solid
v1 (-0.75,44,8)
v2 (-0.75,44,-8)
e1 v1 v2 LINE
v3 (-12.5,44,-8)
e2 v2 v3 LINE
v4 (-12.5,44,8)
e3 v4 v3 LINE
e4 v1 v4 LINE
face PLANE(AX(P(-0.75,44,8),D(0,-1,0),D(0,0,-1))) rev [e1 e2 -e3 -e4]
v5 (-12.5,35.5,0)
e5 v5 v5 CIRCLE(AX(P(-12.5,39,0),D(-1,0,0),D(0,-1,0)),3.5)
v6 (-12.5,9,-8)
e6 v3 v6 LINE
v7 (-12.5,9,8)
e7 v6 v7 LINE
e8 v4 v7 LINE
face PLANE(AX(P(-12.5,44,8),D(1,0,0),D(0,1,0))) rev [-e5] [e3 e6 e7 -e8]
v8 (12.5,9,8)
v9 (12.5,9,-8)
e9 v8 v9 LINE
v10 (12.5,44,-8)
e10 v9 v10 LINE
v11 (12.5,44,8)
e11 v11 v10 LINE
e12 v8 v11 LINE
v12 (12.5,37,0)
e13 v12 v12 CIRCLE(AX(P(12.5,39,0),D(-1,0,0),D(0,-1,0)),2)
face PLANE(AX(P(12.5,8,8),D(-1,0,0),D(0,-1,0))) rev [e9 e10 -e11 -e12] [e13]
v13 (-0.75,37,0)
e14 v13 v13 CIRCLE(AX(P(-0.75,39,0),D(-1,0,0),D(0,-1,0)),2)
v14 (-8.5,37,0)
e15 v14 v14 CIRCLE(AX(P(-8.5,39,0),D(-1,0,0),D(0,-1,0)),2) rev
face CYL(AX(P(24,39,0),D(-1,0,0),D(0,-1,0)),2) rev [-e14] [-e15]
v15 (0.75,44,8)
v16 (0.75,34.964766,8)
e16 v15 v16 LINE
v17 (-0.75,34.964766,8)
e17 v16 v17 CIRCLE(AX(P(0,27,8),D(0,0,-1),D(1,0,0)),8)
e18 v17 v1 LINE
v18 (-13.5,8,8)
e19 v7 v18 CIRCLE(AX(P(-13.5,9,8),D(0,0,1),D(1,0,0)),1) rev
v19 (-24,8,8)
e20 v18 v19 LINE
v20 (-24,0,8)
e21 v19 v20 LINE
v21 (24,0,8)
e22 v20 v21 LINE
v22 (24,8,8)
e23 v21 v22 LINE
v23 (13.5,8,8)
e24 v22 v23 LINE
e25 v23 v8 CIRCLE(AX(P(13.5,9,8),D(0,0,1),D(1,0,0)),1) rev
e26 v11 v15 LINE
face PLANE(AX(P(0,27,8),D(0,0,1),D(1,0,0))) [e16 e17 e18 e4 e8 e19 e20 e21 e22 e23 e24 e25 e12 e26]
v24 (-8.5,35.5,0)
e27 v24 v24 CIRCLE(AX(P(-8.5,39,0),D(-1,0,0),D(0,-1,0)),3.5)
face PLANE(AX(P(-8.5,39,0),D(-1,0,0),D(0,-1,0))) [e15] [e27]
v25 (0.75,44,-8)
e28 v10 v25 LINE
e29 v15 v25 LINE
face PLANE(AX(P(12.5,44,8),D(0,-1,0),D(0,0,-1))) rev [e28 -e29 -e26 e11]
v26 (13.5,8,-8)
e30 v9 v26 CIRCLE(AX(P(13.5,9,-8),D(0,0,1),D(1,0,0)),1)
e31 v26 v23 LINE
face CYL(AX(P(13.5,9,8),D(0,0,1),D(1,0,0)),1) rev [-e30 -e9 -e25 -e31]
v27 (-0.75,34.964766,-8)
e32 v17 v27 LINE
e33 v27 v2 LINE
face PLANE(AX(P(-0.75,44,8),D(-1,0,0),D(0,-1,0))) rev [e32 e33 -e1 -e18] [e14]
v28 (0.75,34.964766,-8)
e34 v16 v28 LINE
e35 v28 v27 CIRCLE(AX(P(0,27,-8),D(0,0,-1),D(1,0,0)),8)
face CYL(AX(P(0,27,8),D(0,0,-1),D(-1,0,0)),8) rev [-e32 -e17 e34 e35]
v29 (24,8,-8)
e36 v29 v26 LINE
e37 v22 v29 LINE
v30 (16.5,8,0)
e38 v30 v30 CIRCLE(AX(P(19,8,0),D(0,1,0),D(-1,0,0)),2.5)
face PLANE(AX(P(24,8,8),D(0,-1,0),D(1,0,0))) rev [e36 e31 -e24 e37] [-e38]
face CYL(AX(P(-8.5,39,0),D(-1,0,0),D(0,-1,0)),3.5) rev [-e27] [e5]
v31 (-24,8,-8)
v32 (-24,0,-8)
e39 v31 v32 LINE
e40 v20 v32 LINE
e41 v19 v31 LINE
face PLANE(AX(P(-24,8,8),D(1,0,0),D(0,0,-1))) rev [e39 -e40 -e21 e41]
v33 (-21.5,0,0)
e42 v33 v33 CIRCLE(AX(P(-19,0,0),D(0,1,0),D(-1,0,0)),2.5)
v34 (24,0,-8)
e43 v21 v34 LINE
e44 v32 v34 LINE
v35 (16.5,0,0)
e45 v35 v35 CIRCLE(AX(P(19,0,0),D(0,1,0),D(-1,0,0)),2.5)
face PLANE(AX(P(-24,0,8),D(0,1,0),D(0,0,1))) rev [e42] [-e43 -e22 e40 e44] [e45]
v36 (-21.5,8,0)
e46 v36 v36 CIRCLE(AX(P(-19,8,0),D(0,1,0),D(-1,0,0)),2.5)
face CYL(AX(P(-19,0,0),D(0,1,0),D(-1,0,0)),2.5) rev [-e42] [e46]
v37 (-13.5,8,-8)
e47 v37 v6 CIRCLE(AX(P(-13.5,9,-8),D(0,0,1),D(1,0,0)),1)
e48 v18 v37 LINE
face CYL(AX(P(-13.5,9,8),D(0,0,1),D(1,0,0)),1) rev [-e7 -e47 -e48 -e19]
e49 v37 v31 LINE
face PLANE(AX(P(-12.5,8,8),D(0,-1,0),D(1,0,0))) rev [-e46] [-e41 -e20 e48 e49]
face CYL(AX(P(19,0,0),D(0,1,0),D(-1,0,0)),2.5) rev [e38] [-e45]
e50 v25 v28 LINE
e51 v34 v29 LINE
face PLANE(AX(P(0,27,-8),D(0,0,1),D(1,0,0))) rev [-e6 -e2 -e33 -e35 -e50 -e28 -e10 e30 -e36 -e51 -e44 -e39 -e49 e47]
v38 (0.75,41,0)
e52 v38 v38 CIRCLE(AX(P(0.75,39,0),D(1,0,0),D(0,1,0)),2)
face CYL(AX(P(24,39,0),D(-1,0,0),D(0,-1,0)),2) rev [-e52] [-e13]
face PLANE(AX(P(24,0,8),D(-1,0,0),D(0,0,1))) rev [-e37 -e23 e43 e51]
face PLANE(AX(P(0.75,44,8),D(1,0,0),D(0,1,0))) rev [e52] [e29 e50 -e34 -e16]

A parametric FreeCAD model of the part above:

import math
import FreeCAD as App
import Part
import Sketcher

V = App.Vector
Q = App.Units.Quantity


def edges_at(feature, points):
    """Names of the edges that pass closest to the given points."""
    edges = feature.Shape.Edges
    near = lambda p: min(range(len(edges)), key=lambda i: edges[i].distToShape(Part.Vertex(*p))[0])
    return sorted({f"Edge{near(p) + 1}" for p in points})

doc = App.newDocument("Part")
params = doc.addObject("Spreadsheet::Sheet", "Params")
for row, (alias, value) in enumerate([
    ("sketch1_radius", "8 mm"),
    ("sketch1_width", "48 mm"),
    ("sketch1_height", "8 mm"),
    ("sketch1_height2", "36 mm"),
    ("sketch1_width2", "11.5 mm"),
    ("pad1_length", "16 mm"),
    ("sketch2_diameter", "5 mm"),
    ("fillet_radius", "1 mm"),
    ("sketch3_diameter", "4 mm"),
    ("sketch4_diameter", "7 mm"),
    ("pocket3_length", "4 mm"),
], start=1):
    params.set(f"A{row}", alias)
    params.set(f"B{row}", "=" + value)
    params.setAlias(f"B{row}", alias)

body = doc.addObject("PartDesign::Body", "Body")

# Sketch on XY plane
sketch1 = body.newObject("Sketcher::SketchObject", "Sketch")
sketch1.AttachmentSupport = (doc.getObject("XY_Plane"), [""])
sketch1.MapMode = "FlatFace"
sketch1.addGeometry([
    Part.LineSegment(V(-24, 0, 0), V(24, 0, 0)),  # 0
    Part.LineSegment(V(24, 0, 0), V(24, 8, 0)),  # 1
    Part.LineSegment(V(24, 8, 0), V(12.5, 8, 0)),  # 2
    Part.LineSegment(V(12.5, 8, 0), V(12.5, 44, 0)),  # 3
    Part.LineSegment(V(12.5, 44, 0), V(0.8, 44, 0)),  # 4
    Part.LineSegment(V(0.8, 44, 0), V(0.8, 35, 0)),  # 5
    Part.ArcOfCircle(Part.Circle(V(0, 27, 0), V(0, 0, 1), 8), math.radians(95), math.radians(445)),  # 6
    Part.LineSegment(V(-0.8, 35, 0), V(-0.8, 44, 0)),  # 7
    Part.LineSegment(V(-0.8, 44, 0), V(-12.5, 44, 0)),  # 8
    Part.LineSegment(V(-12.5, 44, 0), V(-12.5, 8, 0)),  # 9
    Part.LineSegment(V(-12.5, 8, 0), V(-24, 8, 0)),  # 10
    Part.LineSegment(V(-24, 8, 0), V(-24, 0, 0)),  # 11
], False)
sketch1.addConstraint([
    Sketcher.Constraint("Coincident", 0, 2, 1, 1),
    Sketcher.Constraint("Coincident", 1, 2, 2, 1),
    Sketcher.Constraint("Coincident", 2, 2, 3, 1),
    Sketcher.Constraint("Coincident", 3, 2, 4, 1),
    Sketcher.Constraint("Coincident", 4, 2, 5, 1),
    Sketcher.Constraint("Coincident", 5, 2, 6, 2),
    Sketcher.Constraint("Coincident", 6, 1, 7, 1),
    Sketcher.Constraint("Coincident", 7, 2, 8, 1),
    Sketcher.Constraint("Coincident", 8, 2, 9, 1),
    Sketcher.Constraint("Coincident", 9, 2, 10, 1),
    Sketcher.Constraint("Coincident", 10, 2, 11, 1),
    Sketcher.Constraint("Coincident", 11, 2, 0, 1),
    Sketcher.Constraint("Horizontal", 0),
    Sketcher.Constraint("Vertical", 1),
    Sketcher.Constraint("Horizontal", 2),
    Sketcher.Constraint("Vertical", 3),
    Sketcher.Constraint("Horizontal", 4),
    Sketcher.Constraint("Vertical", 5),
    Sketcher.Constraint("Vertical", 7),
    Sketcher.Constraint("Horizontal", 8),
    Sketcher.Constraint("Vertical", 9),
    Sketcher.Constraint("Horizontal", 10),
    Sketcher.Constraint("Vertical", 11),
    Sketcher.Constraint("Symmetric", 0, 2, 11, 2, -1, 1),
    Sketcher.Constraint("Symmetric", 5, 2, 6, 1, -2),
    Sketcher.Constraint("Symmetric", 3, 2, 8, 2, -2),
    Sketcher.Constraint("Horizontal", 2, 2, 9, 2),
    Sketcher.Constraint("Radius", 6, Q("8 mm")),
    Sketcher.Constraint("DistanceX", 0, 1, 0, 2, Q("48 mm")),
    Sketcher.Constraint("DistanceY", 1, 1, 1, 2, Q("8 mm")),
    Sketcher.Constraint("DistanceY", 3, 1, 3, 2, Q("36 mm")),
    Sketcher.Constraint("DistanceX", 2, 2, 2, 1, Q("11.5 mm")),
    Sketcher.Constraint("DistanceY", -1, 1, 6, 3, Q("27 mm")),
    Sketcher.Constraint("DistanceX", 4, 2, 4, 1, Q("11.75 mm")),
])
sketch1.setExpression("Constraints[27]", "Params.sketch1_radius")
sketch1.setExpression("Constraints[28]", "Params.sketch1_width")
sketch1.setExpression("Constraints[29]", "Params.sketch1_height")
sketch1.setExpression("Constraints[30]", "Params.sketch1_height2")
sketch1.setExpression("Constraints[31]", "Params.sketch1_width2")
pad1 = body.newObject("PartDesign::Pad", "Pad")
pad1.Profile = sketch1
pad1.setExpression("Length", "Params.pad1_length")
pad1.Midplane = True

# Sketch on XZ plane
sketch2 = body.newObject("Sketcher::SketchObject", "Sketch001")
sketch2.AttachmentSupport = (doc.getObject("XZ_Plane"), [""])
sketch2.MapMode = "FlatFace"
sketch2.AttachmentOffset = App.Placement(V(0, 0, -8), App.Rotation())
sketch2.addGeometry([
    Part.Circle(V(-19, 0, 0), V(0, 0, 1), 2.5),
    Part.Circle(V(19, 0, 0), V(0, 0, 1), 2.5),
], False)
sketch2.addConstraint([
    Sketcher.Constraint("Equal", 0, 1),
    Sketcher.Constraint("Symmetric", 0, 3, 1, 3, -1, 1),
    Sketcher.Constraint("PointOnObject", 0, 3, -1),
    Sketcher.Constraint("Diameter", 0, Q("5 mm")),
    Sketcher.Constraint("DistanceX", 0, 3, -1, 1, Q("19 mm")),
])
sketch2.setExpression("Constraints[3]", "Params.sketch2_diameter")
pocket1 = body.newObject("PartDesign::Pocket", "Pocket")
pocket1.Profile = sketch2
pocket1.Type = "ThroughAll"
pocket1.Reversed = True
doc.recompute()

fillet = body.newObject("PartDesign::Fillet", "Fillet")
fillet.Base = (pocket1, edges_at(pocket1, [(-12.5, 8, 0), (12.5, 8, 0)]))
fillet.setExpression("Radius", "Params.fillet_radius")

# Sketch on YZ plane
sketch3 = body.newObject("Sketcher::SketchObject", "Sketch002")
sketch3.AttachmentSupport = (doc.getObject("YZ_Plane"), [""])
sketch3.MapMode = "FlatFace"
sketch3.AttachmentOffset = App.Placement(V(0, 0, -12.5), App.Rotation())
sketch3.addGeometry(Part.Circle(V(39, 0, 0), V(0, 0, 1), 2), False)
sketch3.addConstraint([
    Sketcher.Constraint("PointOnObject", 0, 3, -1),
    Sketcher.Constraint("Diameter", 0, Q("4 mm")),
    Sketcher.Constraint("DistanceX", -1, 1, 0, 3, Q("39 mm")),
])
sketch3.setExpression("Constraints[1]", "Params.sketch3_diameter")
pocket2 = body.newObject("PartDesign::Pocket", "Pocket001")
pocket2.Profile = sketch3
pocket2.Type = "ThroughAll"
pocket2.Reversed = True

# Sketch on YZ plane
sketch4 = body.newObject("Sketcher::SketchObject", "Sketch003")
sketch4.AttachmentSupport = (doc.getObject("YZ_Plane"), [""])
sketch4.MapMode = "FlatFace"
sketch4.AttachmentOffset = App.Placement(V(0, 0, -12.5), App.Rotation())
sketch4.addGeometry(Part.Circle(V(39, 0, 0), V(0, 0, 1), 3.5), False)
sketch4.addConstraint([
    Sketcher.Constraint("PointOnObject", 0, 3, -1),
    Sketcher.Constraint("Diameter", 0, Q("7 mm")),
    Sketcher.Constraint("DistanceX", -1, 1, 0, 3, Q("39 mm")),
])
sketch4.setExpression("Constraints[1]", "Params.sketch4_diameter")
pocket3 = body.newObject("PartDesign::Pocket", "Pocket002")
pocket3.Profile = sketch4
pocket3.setExpression("Length", "Params.pocket3_length")
pocket3.Reversed = True

doc.recompute()
